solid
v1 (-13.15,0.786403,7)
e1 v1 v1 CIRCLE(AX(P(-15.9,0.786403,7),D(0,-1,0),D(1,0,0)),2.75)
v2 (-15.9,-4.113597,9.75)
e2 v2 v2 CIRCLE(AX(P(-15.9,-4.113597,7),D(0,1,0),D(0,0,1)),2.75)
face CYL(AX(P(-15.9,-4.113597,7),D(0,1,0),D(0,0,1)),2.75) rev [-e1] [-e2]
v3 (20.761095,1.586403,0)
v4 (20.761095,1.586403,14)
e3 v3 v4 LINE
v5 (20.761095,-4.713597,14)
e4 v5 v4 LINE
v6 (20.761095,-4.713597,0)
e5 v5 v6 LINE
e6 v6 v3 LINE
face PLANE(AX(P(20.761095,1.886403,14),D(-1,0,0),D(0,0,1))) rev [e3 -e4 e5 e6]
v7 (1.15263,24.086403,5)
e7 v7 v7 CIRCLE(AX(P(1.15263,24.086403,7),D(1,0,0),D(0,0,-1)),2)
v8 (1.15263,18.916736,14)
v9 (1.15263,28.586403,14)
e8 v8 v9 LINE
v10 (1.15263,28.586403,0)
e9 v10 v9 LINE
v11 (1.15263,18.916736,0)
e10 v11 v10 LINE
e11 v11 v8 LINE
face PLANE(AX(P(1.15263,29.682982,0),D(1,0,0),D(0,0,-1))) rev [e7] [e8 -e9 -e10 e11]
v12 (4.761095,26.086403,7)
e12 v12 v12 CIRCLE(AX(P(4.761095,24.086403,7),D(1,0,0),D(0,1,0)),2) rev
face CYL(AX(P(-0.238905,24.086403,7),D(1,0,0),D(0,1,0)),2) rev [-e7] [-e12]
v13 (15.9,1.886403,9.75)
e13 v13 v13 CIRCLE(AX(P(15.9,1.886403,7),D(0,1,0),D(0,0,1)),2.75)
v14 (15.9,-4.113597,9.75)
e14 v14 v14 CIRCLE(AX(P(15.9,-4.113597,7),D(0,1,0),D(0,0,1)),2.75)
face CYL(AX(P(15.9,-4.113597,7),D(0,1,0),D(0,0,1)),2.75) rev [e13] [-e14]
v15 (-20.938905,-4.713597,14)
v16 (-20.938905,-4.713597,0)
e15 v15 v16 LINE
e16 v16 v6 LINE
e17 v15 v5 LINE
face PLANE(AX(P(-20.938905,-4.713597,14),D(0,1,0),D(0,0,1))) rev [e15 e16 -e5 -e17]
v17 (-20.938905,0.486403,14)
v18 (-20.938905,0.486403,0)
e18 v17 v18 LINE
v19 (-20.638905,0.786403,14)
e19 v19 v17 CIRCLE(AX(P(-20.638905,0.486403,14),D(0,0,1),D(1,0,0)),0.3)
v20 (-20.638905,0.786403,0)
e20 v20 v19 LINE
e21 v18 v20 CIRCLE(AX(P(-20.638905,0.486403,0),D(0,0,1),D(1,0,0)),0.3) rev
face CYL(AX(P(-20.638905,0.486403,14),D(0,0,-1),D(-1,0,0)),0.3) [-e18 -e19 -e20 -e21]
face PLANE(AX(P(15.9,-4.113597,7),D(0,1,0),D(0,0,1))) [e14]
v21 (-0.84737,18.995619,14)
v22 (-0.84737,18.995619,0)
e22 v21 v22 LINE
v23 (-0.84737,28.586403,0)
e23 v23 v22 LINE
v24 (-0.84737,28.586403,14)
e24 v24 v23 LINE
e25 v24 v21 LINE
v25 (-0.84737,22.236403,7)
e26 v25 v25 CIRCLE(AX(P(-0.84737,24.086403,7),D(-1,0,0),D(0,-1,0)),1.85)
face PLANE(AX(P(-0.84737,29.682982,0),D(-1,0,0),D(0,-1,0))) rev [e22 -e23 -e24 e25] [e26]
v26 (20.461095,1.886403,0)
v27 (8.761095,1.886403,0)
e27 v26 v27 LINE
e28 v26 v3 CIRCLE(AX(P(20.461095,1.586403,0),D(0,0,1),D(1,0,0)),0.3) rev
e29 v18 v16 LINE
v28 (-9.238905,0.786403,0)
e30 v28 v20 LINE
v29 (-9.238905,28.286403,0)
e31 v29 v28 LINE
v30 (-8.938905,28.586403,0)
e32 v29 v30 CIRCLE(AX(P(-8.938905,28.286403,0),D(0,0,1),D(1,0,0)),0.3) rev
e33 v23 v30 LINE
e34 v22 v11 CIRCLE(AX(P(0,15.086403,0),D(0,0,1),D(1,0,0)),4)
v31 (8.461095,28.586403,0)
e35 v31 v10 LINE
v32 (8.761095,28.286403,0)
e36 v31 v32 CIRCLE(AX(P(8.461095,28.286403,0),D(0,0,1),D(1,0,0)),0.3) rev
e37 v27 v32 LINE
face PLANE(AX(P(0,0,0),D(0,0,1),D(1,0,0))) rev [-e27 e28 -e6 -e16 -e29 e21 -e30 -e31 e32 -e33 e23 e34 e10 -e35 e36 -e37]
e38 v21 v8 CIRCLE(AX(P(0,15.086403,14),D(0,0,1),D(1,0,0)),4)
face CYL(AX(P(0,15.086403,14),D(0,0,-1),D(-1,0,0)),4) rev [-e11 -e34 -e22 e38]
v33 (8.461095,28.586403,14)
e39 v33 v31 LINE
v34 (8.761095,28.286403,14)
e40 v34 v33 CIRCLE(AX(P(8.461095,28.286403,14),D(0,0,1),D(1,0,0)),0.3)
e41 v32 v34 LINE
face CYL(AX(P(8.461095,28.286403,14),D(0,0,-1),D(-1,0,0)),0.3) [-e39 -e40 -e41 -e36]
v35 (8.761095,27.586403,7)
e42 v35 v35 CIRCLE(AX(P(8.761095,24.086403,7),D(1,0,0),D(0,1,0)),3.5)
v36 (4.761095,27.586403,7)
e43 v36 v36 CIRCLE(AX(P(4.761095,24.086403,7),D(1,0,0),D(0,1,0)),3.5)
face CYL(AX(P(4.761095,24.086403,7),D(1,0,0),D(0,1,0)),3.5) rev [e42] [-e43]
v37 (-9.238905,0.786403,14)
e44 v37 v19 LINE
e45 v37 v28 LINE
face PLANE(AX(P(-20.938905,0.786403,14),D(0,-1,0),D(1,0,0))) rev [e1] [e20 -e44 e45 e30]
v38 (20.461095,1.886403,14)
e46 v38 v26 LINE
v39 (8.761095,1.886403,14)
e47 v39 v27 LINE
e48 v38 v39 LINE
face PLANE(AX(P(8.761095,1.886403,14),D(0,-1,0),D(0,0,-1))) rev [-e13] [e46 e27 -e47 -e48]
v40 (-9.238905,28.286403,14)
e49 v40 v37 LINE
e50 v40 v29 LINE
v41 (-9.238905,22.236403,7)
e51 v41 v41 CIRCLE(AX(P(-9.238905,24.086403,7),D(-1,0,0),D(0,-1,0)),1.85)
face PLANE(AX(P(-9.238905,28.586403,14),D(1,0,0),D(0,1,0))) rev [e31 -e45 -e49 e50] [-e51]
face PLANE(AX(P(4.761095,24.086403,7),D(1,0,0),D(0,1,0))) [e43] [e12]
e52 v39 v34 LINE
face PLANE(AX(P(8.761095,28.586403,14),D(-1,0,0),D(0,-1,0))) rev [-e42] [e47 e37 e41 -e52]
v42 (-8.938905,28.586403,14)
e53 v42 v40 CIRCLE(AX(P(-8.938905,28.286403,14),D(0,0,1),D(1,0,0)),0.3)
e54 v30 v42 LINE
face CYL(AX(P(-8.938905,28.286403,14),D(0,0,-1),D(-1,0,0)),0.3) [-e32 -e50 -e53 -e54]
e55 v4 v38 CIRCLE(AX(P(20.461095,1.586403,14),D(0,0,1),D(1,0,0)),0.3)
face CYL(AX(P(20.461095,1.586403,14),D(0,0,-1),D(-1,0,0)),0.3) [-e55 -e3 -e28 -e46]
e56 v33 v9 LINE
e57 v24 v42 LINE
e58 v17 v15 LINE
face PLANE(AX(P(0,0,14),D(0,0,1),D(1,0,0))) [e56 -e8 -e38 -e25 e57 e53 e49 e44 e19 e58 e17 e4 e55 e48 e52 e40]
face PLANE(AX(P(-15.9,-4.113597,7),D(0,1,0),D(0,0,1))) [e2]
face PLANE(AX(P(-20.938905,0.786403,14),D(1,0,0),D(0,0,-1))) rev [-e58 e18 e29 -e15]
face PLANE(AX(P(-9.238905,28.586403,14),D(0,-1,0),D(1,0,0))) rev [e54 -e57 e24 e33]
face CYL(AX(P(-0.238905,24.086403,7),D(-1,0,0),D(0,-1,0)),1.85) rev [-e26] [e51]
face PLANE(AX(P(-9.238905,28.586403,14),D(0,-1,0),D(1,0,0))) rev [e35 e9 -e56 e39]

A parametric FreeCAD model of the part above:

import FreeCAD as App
import Part
import Sketcher
from FreeCAD import Vector


def edges_at(feature, points):
    """Names of the edges that pass closest to the given points."""
    edges = feature.Shape.Edges
    near = lambda p: min(range(len(edges)), key=lambda i: edges[i].distToShape(Part.Vertex(*p))[0])
    return sorted({f"Edge{near(p) + 1}" for p in points})


def add_polygon(sketch, points):
    """Adds a closed chain of lines whose ends are joined by coincident constraints."""
    first, n = sketch.GeometryCount, len(points)
    for a, b in zip(points, points[1:] + points[:1]):
        sketch.addGeometry(Part.LineSegment(App.Vector(*a, 0), App.Vector(*b, 0)), False)
    for i in range(n):
        sketch.addConstraint(Sketcher.Constraint("Coincident", first + i, 2, first + (i + 1) % n, 1))

doc = App.newDocument("Part")
body = doc.addObject("PartDesign::Body", "Body")

# Sketch on XY plane
sketch1 = body.newObject("Sketcher::SketchObject", "Sketch")
sketch1.AttachmentSupport = (doc.getObject("XY_Plane"), [""])
sketch1.MapMode = "FlatFace"
add_polygon(sketch1, [(-9.2, 0.8), (-20.9, 0.8), (-20.9, -4.7), (20.8, -4.7), (20.8, 1.9), (8.8, 1.9), (8.8, 28.6), (-9.2, 28.6)])  # lines 0-7
sketch1.addGeometry(Part.Circle(Vector(0, 15.1, 0), Vector(0, 0, 1), 4), False)  # 8
sketch1.addConstraint([
    Sketcher.Constraint("Horizontal", 0),
    Sketcher.Constraint("Vertical", 1),
    Sketcher.Constraint("Horizontal", 2),
    Sketcher.Constraint("Vertical", 3),
    Sketcher.Constraint("Horizontal", 4),
    Sketcher.Constraint("Vertical", 5),
    Sketcher.Constraint("Horizontal", 6),
    Sketcher.Constraint("Vertical", 7),
    Sketcher.Constraint("PointOnObject", 8, 3, -2),
    Sketcher.Constraint("Diameter", 8, 8.0),
    Sketcher.Constraint("DistanceX", 4, 2, 4, 1, 12.0),
    Sketcher.Constraint("DistanceX", 6, 2, 6, 1, 18.0),
    Sketcher.Constraint("DistanceX", 0, 2, 0, 1, 11.7),
    Sketcher.Constraint("DistanceY", 1, 2, 1, 1, 5.5),
    Sketcher.Constraint("DistanceY", 3, 1, 3, 2, 6.6),
    Sketcher.Constraint("DistanceY", 5, 1, 5, 2, 26.7),
    Sketcher.Constraint("DistanceY", 0, 2, 8, 3, 14.3),
    Sketcher.Constraint("DistanceY", -1, 1, 8, 3, 15.086403),
    Sketcher.Constraint("DistanceX", 0, 2, -1, 1, 20.938905),
])
pad1 = body.newObject("PartDesign::Pad", "Pad")
pad1.Profile = sketch1
pad1.Length = 14

# Sketch on XZ plane
sketch2 = body.newObject("Sketcher::SketchObject", "Sketch001")
sketch2.AttachmentSupport = (doc.getObject("XZ_Plane"), [""])
sketch2.MapMode = "FlatFace"
sketch2.AttachmentOffset = App.Placement(Vector(0, 0, -1.886403), App.Rotation())
sketch2.addGeometry([
    Part.Circle(Vector(-15.9, 7, 0), Vector(0, 0, 1), 2.8),
    Part.Circle(Vector(15.9, 7, 0), Vector(0, 0, 1), 2.8),
], False)
sketch2.addConstraint([
    Sketcher.Constraint("Equal", 0, 1),
    Sketcher.Constraint("Symmetric", 0, 3, 1, 3, -2),
    Sketcher.Constraint("Diameter", 0, 5.5),
    Sketcher.Constraint("DistanceY", -1, 1, 0, 3, 7.0),
    Sketcher.Constraint("DistanceX", 0, 3, -1, 1, 15.9),
])
pocket1 = body.newObject("PartDesign::Pocket", "Pocket")
pocket1.Profile = sketch2
pocket1.Length = 6
pocket1.Reversed = True

# Sketch on XY plane
sketch3 = body.newObject("Sketcher::SketchObject", "Sketch002")
sketch3.AttachmentSupport = (doc.getObject("XY_Plane"), [""])
sketch3.MapMode = "FlatFace"
sketch3.AttachmentOffset = App.Placement(Vector(0, 0, 14), App.Rotation())
add_polygon(sketch3, [(-0.8, 29.7), (-0.8, 18.1), (1.2, 18.1), (1.2, 29.7)])  # lines 0-3
sketch3.addConstraint([
    Sketcher.Constraint("Vertical", 0),
    Sketcher.Constraint("Horizontal", 1),
    Sketcher.Constraint("Vertical", 2),
    Sketcher.Constraint("Horizontal", 3),
    Sketcher.Constraint("DistanceX", 1, 1, 1, 2, 2.0),
    Sketcher.Constraint("DistanceY", 0, 2, 0, 1, 11.620769),
    Sketcher.Constraint("DistanceX", 0, 2, -1, 1, 0.84737),
    Sketcher.Constraint("DistanceY", -1, 1, 2, 2, 29.682982),
])
pocket2 = body.newObject("PartDesign::Pocket", "Pocket001")
pocket2.Profile = sketch3
pocket2.Length = 14

# Sketch on YZ plane
sketch4 = body.newObject("Sketcher::SketchObject", "Sketch003")
sketch4.AttachmentSupport = (doc.getObject("YZ_Plane"), [""])
sketch4.MapMode = "FlatFace"
sketch4.AttachmentOffset = App.Placement(Vector(0, 0, 8.761095), App.Rotation())
sketch4.addGeometry(Part.Circle(Vector(24.1, 7, 0), Vector(0, 0, 1), 2), False)
sketch4.addConstraint([
    Sketcher.Constraint("Diameter", 0, 4.0),
    Sketcher.Constraint("DistanceY", -1, 1, 0, 3, 7.0),
    Sketcher.Constraint("DistanceX", -1, 1, 0, 3, 24.086403),
])
pocket3 = body.newObject("PartDesign::Pocket", "Pocket002")
pocket3.Profile = sketch4
pocket3.Length = 9

# Sketch on YZ plane
sketch5 = body.newObject("Sketcher::SketchObject", "Sketch004")
sketch5.AttachmentSupport = (doc.getObject("YZ_Plane"), [""])
sketch5.MapMode = "FlatFace"
sketch5.AttachmentOffset = App.Placement(Vector(0, 0, 8.761095), App.Rotation())
sketch5.addGeometry(Part.Circle(Vector(24.1, 7, 0), Vector(0, 0, 1), 3.5), False)
sketch5.addConstraint([
    Sketcher.Constraint("Diameter", 0, 7.0),
    Sketcher.Constraint("DistanceY", -1, 1, 0, 3, 7.0),
    Sketcher.Constraint("DistanceX", -1, 1, 0, 3, 24.086403),
])
pocket4 = body.newObject("PartDesign::Pocket", "Pocket003")
pocket4.Profile = sketch5
pocket4.Length = 4

# Sketch on YZ plane
sketch6 = body.newObject("Sketcher::SketchObject", "Sketch005")
sketch6.AttachmentSupport = (doc.getObject("YZ_Plane"), [""])
sketch6.MapMode = "FlatFace"
sketch6.AttachmentOffset = App.Placement(Vector(0, 0, -9.238905), App.Rotation())
sketch6.addGeometry(Part.Circle(Vector(24.1, 7, 0), Vector(0, 0, 1), 1.9), False)
sketch6.addConstraint([
    Sketcher.Constraint("Diameter", 0, 3.7),
    Sketcher.Constraint("DistanceY", -1, 1, 0, 3, 7.0),
    Sketcher.Constraint("DistanceX", -1, 1, 0, 3, 24.086403),
])
pocket5 = body.newObject("PartDesign::Pocket", "Pocket004")
pocket5.Profile = sketch6
pocket5.Length = 9
pocket5.Reversed = True
doc.recompute()

fillet = body.newObject("PartDesign::Fillet", "Fillet")
fillet.Base = (pocket5, edges_at(pocket5, [
    (-20.939, 0.786, 7),
    (-9.239, 28.586, 7),
    (8.761, 28.586, 7),
    (20.761, 1.886, 7),
]))
fillet.Radius = 0.3

doc.recompute()
